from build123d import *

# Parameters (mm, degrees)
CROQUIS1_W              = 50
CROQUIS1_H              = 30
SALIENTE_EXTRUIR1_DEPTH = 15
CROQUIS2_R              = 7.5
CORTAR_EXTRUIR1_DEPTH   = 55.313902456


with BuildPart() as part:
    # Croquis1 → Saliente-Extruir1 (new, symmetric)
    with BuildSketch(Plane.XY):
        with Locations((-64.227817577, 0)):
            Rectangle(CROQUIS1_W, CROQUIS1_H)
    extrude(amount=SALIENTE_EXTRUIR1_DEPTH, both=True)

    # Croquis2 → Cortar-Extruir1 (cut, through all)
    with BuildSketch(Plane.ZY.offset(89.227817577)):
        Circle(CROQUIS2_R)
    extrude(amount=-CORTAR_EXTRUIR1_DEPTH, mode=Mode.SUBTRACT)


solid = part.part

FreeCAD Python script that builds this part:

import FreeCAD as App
import Part
import Sketcher
from FreeCAD import Vector
Q = App.Units.Quantity


def add_polygon(sketch, points):
    """Adds a closed chain of lines whose ends are joined by coincident constraints."""
    first, n = sketch.GeometryCount, len(points)
    for a, b in zip(points, points[1:] + points[:1]):
        sketch.addGeometry(Part.LineSegment(App.Vector(*a, 0), App.Vector(*b, 0)), False)
    for i in range(n):
        sketch.addConstraint(Sketcher.Constraint("Coincident", first + i, 2, first + (i + 1) % n, 1))

doc = App.newDocument("Part")
body = doc.addObject("PartDesign::Body", "Body")

# Sketch on XY plane
sketch1 = doc.addObject("Sketcher::SketchObject", "Sketch")
body.addObject(sketch1)
sketch1.AttachmentSupport = (doc.XY_Plane, [""])
sketch1.MapMode = "FlatFace"
add_polygon(sketch1, [(-89, 15), (-89, -15), (-39, -15), (-39, 15)])  # lines 0-3
sketch1.addConstraint([
    Sketcher.Constraint("Vertical", 0),
    Sketcher.Constraint("Horizontal", 1),
    Sketcher.Constraint("Vertical", 2),
    Sketcher.Constraint("Horizontal", 3),
    Sketcher.Constraint("DistanceX", 1, 1, 1, 2, Q("50 mm")),
    Sketcher.Constraint("DistanceY", 0, 2, 0, 1, Q("30 mm")),
    Sketcher.Constraint("DistanceY", 0, 2, -1, 1, Q("15 mm")),
    Sketcher.Constraint("DistanceX", 0, 2, -1, 1, Q("89.227818 mm")),
])
pad1 = doc.addObject("PartDesign::Pad", "Pad")
body.addObject(pad1)
pad1.Profile = sketch1
pad1.Length = 30
pad1.Midplane = True

# Sketch on YZ plane
sketch2 = doc.addObject("Sketcher::SketchObject", "Sketch001")
body.addObject(sketch2)
sketch2.AttachmentSupport = (doc.YZ_Plane, [""])
sketch2.MapMode = "FlatFace"
sketch2.AttachmentOffset = App.Placement(Vector(0, 0, -89.227818), App.Rotation())
sketch2.addGeometry(Part.Circle(Vector(0, 0, 0), Vector(0, 0, 1), 8), False)
sketch2.addConstraint([
    Sketcher.Constraint("Coincident", 0, 3, -1, 1),
    Sketcher.Constraint("Diameter", 0, Q("15 mm")),
])
pocket1 = doc.addObject("PartDesign::Pocket", "Pocket")
body.addObject(pocket1)
pocket1.Profile = sketch2
pocket1.Type = "ThroughAll"
pocket1.Reversed = True

doc.recompute()
